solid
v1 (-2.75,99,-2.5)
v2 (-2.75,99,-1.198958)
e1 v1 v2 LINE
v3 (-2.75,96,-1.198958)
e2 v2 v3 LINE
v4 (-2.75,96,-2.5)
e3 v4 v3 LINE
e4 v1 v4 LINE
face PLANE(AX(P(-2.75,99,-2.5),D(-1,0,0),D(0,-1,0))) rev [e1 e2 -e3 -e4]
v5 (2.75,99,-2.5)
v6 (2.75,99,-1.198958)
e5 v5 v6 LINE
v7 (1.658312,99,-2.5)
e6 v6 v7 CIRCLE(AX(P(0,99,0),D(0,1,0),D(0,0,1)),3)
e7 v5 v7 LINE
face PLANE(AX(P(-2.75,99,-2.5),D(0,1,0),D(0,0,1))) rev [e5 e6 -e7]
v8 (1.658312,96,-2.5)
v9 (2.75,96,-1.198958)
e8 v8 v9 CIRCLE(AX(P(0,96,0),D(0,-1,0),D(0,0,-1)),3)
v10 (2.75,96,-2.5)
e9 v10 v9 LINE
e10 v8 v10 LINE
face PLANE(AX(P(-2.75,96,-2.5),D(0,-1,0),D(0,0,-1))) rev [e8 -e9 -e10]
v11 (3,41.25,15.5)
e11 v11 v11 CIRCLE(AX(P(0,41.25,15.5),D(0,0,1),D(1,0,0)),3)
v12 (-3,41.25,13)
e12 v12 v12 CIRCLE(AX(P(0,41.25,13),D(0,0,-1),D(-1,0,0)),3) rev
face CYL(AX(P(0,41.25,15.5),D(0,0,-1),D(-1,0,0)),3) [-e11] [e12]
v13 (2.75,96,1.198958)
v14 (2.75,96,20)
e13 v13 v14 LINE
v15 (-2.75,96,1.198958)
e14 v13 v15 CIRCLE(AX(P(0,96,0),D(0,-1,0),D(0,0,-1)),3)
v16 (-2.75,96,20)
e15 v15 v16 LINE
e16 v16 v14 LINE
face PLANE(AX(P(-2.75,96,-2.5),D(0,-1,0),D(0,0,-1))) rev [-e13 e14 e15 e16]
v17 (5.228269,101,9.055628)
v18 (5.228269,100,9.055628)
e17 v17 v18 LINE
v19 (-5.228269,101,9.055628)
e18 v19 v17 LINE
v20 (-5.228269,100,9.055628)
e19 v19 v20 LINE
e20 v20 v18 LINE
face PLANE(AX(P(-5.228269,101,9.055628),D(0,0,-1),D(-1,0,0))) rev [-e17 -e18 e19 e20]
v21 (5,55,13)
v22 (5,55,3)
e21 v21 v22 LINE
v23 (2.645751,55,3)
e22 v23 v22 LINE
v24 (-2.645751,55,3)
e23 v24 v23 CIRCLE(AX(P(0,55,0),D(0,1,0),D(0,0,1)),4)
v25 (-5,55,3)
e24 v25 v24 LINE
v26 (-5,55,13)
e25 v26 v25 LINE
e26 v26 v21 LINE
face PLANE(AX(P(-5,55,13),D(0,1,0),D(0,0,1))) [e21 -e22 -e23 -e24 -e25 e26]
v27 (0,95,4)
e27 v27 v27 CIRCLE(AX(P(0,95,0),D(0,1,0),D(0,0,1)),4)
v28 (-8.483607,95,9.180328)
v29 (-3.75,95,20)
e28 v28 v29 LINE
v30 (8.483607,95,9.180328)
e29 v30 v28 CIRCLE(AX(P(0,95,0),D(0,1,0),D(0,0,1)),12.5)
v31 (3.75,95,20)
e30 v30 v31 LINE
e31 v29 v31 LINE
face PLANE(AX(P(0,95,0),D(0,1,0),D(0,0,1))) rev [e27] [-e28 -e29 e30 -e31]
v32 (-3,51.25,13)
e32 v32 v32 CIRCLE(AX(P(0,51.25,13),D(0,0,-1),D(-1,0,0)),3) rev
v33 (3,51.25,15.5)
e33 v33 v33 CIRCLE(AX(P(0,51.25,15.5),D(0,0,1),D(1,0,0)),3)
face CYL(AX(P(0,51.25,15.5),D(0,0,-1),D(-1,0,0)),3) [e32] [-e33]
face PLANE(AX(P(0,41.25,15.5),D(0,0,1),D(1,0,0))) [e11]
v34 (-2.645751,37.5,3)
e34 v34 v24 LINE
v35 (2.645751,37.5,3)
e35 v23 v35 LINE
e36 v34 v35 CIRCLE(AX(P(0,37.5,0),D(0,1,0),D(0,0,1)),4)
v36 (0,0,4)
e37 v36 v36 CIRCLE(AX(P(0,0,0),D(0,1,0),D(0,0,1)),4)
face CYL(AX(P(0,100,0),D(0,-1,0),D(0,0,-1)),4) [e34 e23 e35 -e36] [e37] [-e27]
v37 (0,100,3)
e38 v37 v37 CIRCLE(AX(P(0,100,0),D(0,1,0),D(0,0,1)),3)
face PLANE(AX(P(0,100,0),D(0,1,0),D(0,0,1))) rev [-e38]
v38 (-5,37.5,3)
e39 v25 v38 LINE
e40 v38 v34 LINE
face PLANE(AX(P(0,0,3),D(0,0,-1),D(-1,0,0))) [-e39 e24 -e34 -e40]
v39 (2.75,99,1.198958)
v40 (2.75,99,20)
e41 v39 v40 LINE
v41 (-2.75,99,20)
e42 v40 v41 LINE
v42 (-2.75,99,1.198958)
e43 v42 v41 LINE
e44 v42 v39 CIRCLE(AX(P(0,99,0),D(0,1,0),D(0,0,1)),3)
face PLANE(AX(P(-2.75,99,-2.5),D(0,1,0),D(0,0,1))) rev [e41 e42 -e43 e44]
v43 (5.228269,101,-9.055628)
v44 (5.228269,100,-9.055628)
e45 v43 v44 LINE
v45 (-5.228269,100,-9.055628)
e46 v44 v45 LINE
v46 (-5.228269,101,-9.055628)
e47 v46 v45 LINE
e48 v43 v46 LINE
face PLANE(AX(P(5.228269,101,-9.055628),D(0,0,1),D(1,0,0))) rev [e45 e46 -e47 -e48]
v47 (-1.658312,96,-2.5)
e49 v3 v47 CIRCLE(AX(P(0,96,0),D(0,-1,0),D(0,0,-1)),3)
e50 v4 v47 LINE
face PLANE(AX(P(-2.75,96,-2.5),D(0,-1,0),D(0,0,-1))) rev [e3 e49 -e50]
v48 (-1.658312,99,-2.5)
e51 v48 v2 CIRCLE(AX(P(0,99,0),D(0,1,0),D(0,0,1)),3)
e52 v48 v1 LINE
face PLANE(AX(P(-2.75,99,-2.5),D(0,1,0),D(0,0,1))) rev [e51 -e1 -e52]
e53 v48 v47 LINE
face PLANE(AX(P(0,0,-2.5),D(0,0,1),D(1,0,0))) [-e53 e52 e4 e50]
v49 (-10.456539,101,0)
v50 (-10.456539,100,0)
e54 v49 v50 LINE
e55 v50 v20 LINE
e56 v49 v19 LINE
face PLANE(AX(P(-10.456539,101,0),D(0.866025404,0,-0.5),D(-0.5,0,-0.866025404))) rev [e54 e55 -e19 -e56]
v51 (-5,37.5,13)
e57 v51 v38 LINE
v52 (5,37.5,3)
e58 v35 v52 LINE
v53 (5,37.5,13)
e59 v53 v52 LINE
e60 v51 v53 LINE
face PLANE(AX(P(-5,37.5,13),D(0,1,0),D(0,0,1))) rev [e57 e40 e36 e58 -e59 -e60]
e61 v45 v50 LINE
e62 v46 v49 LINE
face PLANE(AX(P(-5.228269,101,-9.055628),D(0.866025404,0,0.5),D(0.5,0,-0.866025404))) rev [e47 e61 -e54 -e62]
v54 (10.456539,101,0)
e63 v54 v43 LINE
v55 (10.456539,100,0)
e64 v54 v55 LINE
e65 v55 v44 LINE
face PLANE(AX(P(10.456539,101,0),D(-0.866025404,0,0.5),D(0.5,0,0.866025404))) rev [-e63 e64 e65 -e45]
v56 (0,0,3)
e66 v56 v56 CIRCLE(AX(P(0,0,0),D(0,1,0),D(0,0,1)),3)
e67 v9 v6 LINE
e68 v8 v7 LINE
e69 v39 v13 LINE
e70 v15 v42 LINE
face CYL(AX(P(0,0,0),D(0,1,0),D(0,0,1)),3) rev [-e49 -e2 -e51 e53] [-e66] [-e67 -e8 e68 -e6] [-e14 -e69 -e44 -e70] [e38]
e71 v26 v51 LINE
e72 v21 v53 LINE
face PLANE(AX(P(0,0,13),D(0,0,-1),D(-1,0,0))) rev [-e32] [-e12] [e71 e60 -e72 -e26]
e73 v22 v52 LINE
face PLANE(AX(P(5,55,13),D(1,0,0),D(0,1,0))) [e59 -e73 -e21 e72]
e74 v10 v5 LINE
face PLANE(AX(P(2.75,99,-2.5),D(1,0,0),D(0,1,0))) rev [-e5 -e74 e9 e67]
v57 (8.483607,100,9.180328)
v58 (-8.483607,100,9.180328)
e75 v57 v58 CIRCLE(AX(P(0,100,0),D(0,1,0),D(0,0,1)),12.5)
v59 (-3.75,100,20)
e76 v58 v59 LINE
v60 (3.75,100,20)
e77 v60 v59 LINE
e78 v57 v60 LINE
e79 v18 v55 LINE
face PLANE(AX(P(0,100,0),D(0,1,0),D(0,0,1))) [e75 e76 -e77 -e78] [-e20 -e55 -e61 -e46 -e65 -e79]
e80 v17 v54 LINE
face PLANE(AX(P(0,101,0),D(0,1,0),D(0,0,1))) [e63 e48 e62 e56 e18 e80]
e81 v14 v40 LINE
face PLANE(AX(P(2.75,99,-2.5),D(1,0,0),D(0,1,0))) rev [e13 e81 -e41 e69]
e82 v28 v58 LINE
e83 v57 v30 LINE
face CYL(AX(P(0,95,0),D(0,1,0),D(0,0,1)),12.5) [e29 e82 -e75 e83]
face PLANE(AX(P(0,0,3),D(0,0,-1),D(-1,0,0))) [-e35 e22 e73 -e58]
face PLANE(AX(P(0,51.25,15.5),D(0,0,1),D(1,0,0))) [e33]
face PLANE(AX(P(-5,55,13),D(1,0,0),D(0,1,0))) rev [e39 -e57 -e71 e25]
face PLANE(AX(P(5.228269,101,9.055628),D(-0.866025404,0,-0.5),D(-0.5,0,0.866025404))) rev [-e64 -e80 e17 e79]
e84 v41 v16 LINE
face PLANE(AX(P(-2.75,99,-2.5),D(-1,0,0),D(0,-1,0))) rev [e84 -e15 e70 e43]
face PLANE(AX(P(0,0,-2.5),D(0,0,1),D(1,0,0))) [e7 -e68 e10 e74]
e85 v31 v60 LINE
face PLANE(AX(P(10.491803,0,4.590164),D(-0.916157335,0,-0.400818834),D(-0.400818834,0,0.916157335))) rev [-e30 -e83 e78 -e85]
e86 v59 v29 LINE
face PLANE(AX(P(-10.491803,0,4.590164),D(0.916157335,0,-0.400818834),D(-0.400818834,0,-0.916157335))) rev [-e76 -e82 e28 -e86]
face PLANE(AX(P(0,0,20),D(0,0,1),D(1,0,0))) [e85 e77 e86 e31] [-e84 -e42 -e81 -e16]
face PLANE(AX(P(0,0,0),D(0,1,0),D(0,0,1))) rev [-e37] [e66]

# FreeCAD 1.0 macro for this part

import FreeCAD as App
import Part
import Sketcher

V = App.Vector
Q = App.Units.Quantity


def add_polygon(sketch, points):
    """Adds a closed chain of lines whose ends are joined by coincident constraints."""
    first, n = sketch.GeometryCount, len(points)
    for a, b in zip(points, points[1:] + points[:1]):
        sketch.addGeometry(Part.LineSegment(App.Vector(*a, 0), App.Vector(*b, 0)), False)
    for i in range(n):
        sketch.addConstraint(Sketcher.Constraint("Coincident", first + i, 2, first + (i + 1) % n, 1))

doc = App.newDocument("Part")
params = doc.addObject("Spreadsheet::Sheet", "Params")
for row, (alias, value) in enumerate([
    ("sketch1_diameter", "8 mm"),
    ("pad1_length", "100 mm"),
    ("sketch2_diameter", "6 mm"),
    ("sketch3_diameter", "25 mm"),
    ("pad2_length", "5 mm"),
    ("sketch4_width", "25 mm"),
    ("sketch4_height", "5 mm"),
    ("sketch5_height", "5 mm"),
    ("sketch5_width", "7.5 mm"),
    ("sketch6_height", "3 mm"),
    ("sketch6_width", "5.5 mm"),
    ("pocket2_length", "22.5 mm"),
    ("sketch7_diameter", "6 mm"),
    ("pad3_length", "1 mm"),
    ("sketch9_width", "10 mm"),
    ("sketch9_height", "17.5 mm"),
    ("pad4_length", "10 mm"),
    ("sketch10_diameter", "6 mm"),
    ("pad5_length", "2.5 mm"),
], start=1):
    params.set(f"A{row}", alias)
    params.set(f"B{row}", "=" + value)
    params.setAlias(f"B{row}", alias)

body = doc.addObject("PartDesign::Body", "Body")

# Sketch on XZ plane
sketch1 = doc.addObject("Sketcher::SketchObject", "Sketch")
body.addObject(sketch1)
sketch1.AttachmentSupport = (doc.XZ_Plane, [""])
sketch1.MapMode = "FlatFace"
sketch1.addGeometry(Part.Circle(V(0, 0, 0), V(0, 0, 1), 4), False)
sketch1.addConstraint([
    Sketcher.Constraint("Coincident", 0, 3, -1, 1),
    Sketcher.Constraint("Diameter", 0, 8.0),
])
sketch1.setExpression("Constraints[1]", "Params.sketch1_diameter")
pad1 = doc.addObject("PartDesign::Pad", "Pad")
body.addObject(pad1)
pad1.Profile = sketch1
pad1.setExpression("Length", "Params.pad1_length")
pad1.Reversed = True

# Sketch on XZ plane
sketch2 = doc.addObject("Sketcher::SketchObject", "Sketch001")
body.addObject(sketch2)
sketch2.AttachmentSupport = (doc.XZ_Plane, [""])
sketch2.MapMode = "FlatFace"
sketch2.AttachmentOffset = App.Placement(V(0, 0, -100), App.Rotation())
sketch2.addGeometry(Part.Circle(V(0, 0, 0), V(0, 0, 1), 3), False)
sketch2.addConstraint([
    Sketcher.Constraint("Coincident", 0, 3, -1, 1),
    Sketcher.Constraint("Diameter", 0, 6.0),
])
sketch2.setExpression("Constraints[1]", "Params.sketch2_diameter")
pocket1 = doc.addObject("PartDesign::Pocket", "Pocket")
body.addObject(pocket1)
pocket1.Profile = sketch2
pocket1.Type = "ThroughAll"
pocket1.Reversed = True

# Sketch on XZ plane
sketch3 = doc.addObject("Sketcher::SketchObject", "Sketch002")
body.addObject(sketch3)
sketch3.AttachmentSupport = (doc.XZ_Plane, [""])
sketch3.MapMode = "FlatFace"
sketch3.AttachmentOffset = App.Placement(V(0, 0, -100), App.Rotation())
sketch3.addGeometry(Part.Circle(V(0, 0, 0), V(0, 0, 1), 12), False)
sketch3.addConstraint([
    Sketcher.Constraint("Coincident", 0, 3, -1, 1),
    Sketcher.Constraint("Diameter", 0, 25.0),
])
sketch3.setExpression("Constraints[1]", "Params.sketch3_diameter")
pad2 = doc.addObject("PartDesign::Pad", "Pad001")
body.addObject(pad2)
pad2.Profile = sketch3
pad2.setExpression("Length", "Params.pad2_length")

# Sketch on XY plane
sketch4 = doc.addObject("Sketcher::SketchObject", "Sketch003")
body.addObject(sketch4)
sketch4.AttachmentSupport = (doc.XY_Plane, [""])
sketch4.MapMode = "FlatFace"
add_polygon(sketch4, [(12, 100), (-12, 100), (-12, 95), (12, 95)])  # lines 0-3
sketch4.addConstraint([
    Sketcher.Constraint("Horizontal", 0),
    Sketcher.Constraint("Vertical", 1),
    Sketcher.Constraint("Horizontal", 2),
    Sketcher.Constraint("Vertical", 3),
    Sketcher.Constraint("DistanceX", 0, 2, 0, 1, 25.0),
    Sketcher.Constraint("DistanceY", 1, 2, 1, 1, 5.0),
    Sketcher.Constraint("DistanceY", -1, 1, 0, 2, 100.0),
    Sketcher.Constraint("DistanceX", 0, 2, -1, 1, 12.5),
])
sketch4.setExpression("Constraints[8]", "Params.sketch4_width")
sketch4.setExpression("Constraints[9]", "Params.sketch4_height")

# Sketch on XY plane
sketch5 = doc.addObject("Sketcher::SketchObject", "Sketch004")
body.addObject(sketch5)
sketch5.AttachmentSupport = (doc.XY_Plane, [""])
sketch5.MapMode = "FlatFace"
sketch5.AttachmentOffset = App.Placement(V(0, 0, 20), App.Rotation())
add_polygon(sketch5, [(4, 100), (-4, 100), (-4, 95), (4, 95)])  # lines 0-3
sketch5.addConstraint([
    Sketcher.Constraint("Horizontal", 0),
    Sketcher.Constraint("Vertical", 1),
    Sketcher.Constraint("Horizontal", 2),
    Sketcher.Constraint("Vertical", 3),
    Sketcher.Constraint("DistanceY", 1, 2, 1, 1, 5.0),
    Sketcher.Constraint("DistanceX", 0, 2, 0, 1, 7.5),
    Sketcher.Constraint("DistanceY", -1, 1, 0, 2, 100.0),
    Sketcher.Constraint("DistanceX", 0, 2, -1, 1, 3.75),
])
sketch5.setExpression("Constraints[8]", "Params.sketch5_height")
sketch5.setExpression("Constraints[9]", "Params.sketch5_width")

additiveloft = doc.addObject("PartDesign::AdditiveLoft", "AdditiveLoft")
body.addObject(additiveloft)
additiveloft.Profile = sketch4
additiveloft.Sections = [sketch5]

# Sketch on XY plane
sketch6 = doc.addObject("Sketcher::SketchObject", "Sketch005")
body.addObject(sketch6)
sketch6.AttachmentSupport = (doc.XY_Plane, [""])
sketch6.MapMode = "FlatFace"
sketch6.AttachmentOffset = App.Placement(V(0, 0, 20), App.Rotation())
add_polygon(sketch6, [(-2.8, 99), (-2.8, 96), (2.8, 96), (2.8, 99)])  # lines 0-3
sketch6.addConstraint([
    Sketcher.Constraint("Vertical", 0),
    Sketcher.Constraint("Horizontal", 1),
    Sketcher.Constraint("Vertical", 2),
    Sketcher.Constraint("Horizontal", 3),
    Sketcher.Constraint("DistanceY", 0, 2, 0, 1, 3.0),
    Sketcher.Constraint("DistanceX", 1, 1, 1, 2, 5.5),
    Sketcher.Constraint("DistanceY", -1, 1, 0, 2, 96.0),
    Sketcher.Constraint("DistanceX", 0, 2, -1, 1, 2.75),
])
sketch6.setExpression("Constraints[8]", "Params.sketch6_height")
sketch6.setExpression("Constraints[9]", "Params.sketch6_width")
pocket2 = doc.addObject("PartDesign::Pocket", "Pocket001")
body.addObject(pocket2)
pocket2.Profile = sketch6
pocket2.setExpression("Length", "Params.pocket2_length")

# Sketch on XZ plane
sketch7 = doc.addObject("Sketcher::SketchObject", "Sketch006")
body.addObject(sketch7)
sketch7.AttachmentSupport = (doc.XZ_Plane, [""])
sketch7.MapMode = "FlatFace"
sketch7.AttachmentOffset = App.Placement(V(0, 0, -100), App.Rotation())
sketch7.addGeometry(Part.Circle(V(0, 0, 0), V(0, 0, 1), 3), False)
sketch7.addConstraint([
    Sketcher.Constraint("Coincident", 0, 3, -1, 1),
    Sketcher.Constraint("Diameter", 0, 6.0),
])
sketch7.setExpression("Constraints[1]", "Params.sketch7_diameter")
pocket3 = doc.addObject("PartDesign::Pocket", "Pocket002")
body.addObject(pocket3)
pocket3.Profile = sketch7
pocket3.Type = "ThroughAll"
pocket3.Reversed = True

# Sketch on XZ plane
sketch8 = doc.addObject("Sketcher::SketchObject", "Sketch007")
body.addObject(sketch8)
sketch8.AttachmentSupport = (doc.XZ_Plane, [""])
sketch8.MapMode = "FlatFace"
sketch8.AttachmentOffset = App.Placement(V(0, 0, -100), App.Rotation())
add_polygon(sketch8, [(10, 0), (5, -9), (-5, -9), (-10, 0), (-5, 9), (5, 9)])  # lines 0-5
sketch8.addConstraint([
    Sketcher.Constraint("Horizontal", 1),
    Sketcher.Constraint("Horizontal", 4),
    Sketcher.Constraint("Symmetric", 0, 2, 3, 2, -1, 1),
    Sketcher.Constraint("Symmetric", 2, 2, 5, 2, -1, 1),
    Sketcher.Constraint("PointOnObject", 2, 2, -1),
    Sketcher.Constraint("Parallel", 2, 5),
    Sketcher.Constraint("Vertical", 1, 2, 3, 2),
    Sketcher.Constraint("Angle", 0, Q("-120 deg")),
    Sketcher.Constraint("DistanceX", 1, 2, 1, 1, 10.456539),
    Sketcher.Constraint("Distance", 0, 10.456539),
])
pad3 = doc.addObject("PartDesign::Pad", "Pad002")
body.addObject(pad3)
pad3.Profile = sketch8
pad3.setExpression("Length", "Params.pad3_length")
pad3.Reversed = True

# Sketch on XY plane
sketch9 = doc.addObject("Sketcher::SketchObject", "Sketch008")
body.addObject(sketch9)
sketch9.AttachmentSupport = (doc.XY_Plane, [""])
sketch9.MapMode = "FlatFace"
sketch9.AttachmentOffset = App.Placement(V(0, 0, 3), App.Rotation())
add_polygon(sketch9, [(-5, 55), (-5, 38), (5, 38), (5, 55)])  # lines 0-3
sketch9.addConstraint([
    Sketcher.Constraint("Vertical", 0),
    Sketcher.Constraint("Horizontal", 1),
    Sketcher.Constraint("Vertical", 2),
    Sketcher.Constraint("Horizontal", 3),
    Sketcher.Constraint("DistanceX", 1, 1, 1, 2, 10.0),
    Sketcher.Constraint("DistanceY", 0, 2, 0, 1, 17.5),
    Sketcher.Constraint("DistanceX", 0, 2, -1, 1, 5.0),
    Sketcher.Constraint("DistanceY", -1, 1, 2, 2, 55.0),
])
sketch9.setExpression("Constraints[8]", "Params.sketch9_width")
sketch9.setExpression("Constraints[9]", "Params.sketch9_height")
pad4 = doc.addObject("PartDesign::Pad", "Pad003")
body.addObject(pad4)
pad4.Profile = sketch9
pad4.setExpression("Length", "Params.pad4_length")

# Sketch on XY plane
sketch10 = doc.addObject("Sketcher::SketchObject", "Sketch009")
body.addObject(sketch10)
sketch10.AttachmentSupport = (doc.XY_Plane, [""])
sketch10.MapMode = "FlatFace"
sketch10.AttachmentOffset = App.Placement(V(0, 0, 13), App.Rotation())
sketch10.addGeometry([
    Part.Circle(V(0, 51.2, 0), V(0, 0, 1), 3),
    Part.Circle(V(0, 41.2, 0), V(0, 0, 1), 3),
], False)
sketch10.addConstraint([
    Sketcher.Constraint("Equal", 0, 1),
    Sketcher.Constraint("PointOnObject", 0, 3, -2),
    Sketcher.Constraint("PointOnObject", 1, 3, -2),
    Sketcher.Constraint("Diameter", 0, 6.0),
    Sketcher.Constraint("DistanceY", 1, 3, 0, 3, 10.0),
    Sketcher.Constraint("DistanceY", -1, 1, 0, 3, 51.25),
])
sketch10.setExpression("Constraints[3]", "Params.sketch10_diameter")
pad5 = doc.addObject("PartDesign::Pad", "Pad004")
body.addObject(pad5)
pad5.Profile = sketch10
pad5.setExpression("Length", "Params.pad5_length")

doc.recompute()
